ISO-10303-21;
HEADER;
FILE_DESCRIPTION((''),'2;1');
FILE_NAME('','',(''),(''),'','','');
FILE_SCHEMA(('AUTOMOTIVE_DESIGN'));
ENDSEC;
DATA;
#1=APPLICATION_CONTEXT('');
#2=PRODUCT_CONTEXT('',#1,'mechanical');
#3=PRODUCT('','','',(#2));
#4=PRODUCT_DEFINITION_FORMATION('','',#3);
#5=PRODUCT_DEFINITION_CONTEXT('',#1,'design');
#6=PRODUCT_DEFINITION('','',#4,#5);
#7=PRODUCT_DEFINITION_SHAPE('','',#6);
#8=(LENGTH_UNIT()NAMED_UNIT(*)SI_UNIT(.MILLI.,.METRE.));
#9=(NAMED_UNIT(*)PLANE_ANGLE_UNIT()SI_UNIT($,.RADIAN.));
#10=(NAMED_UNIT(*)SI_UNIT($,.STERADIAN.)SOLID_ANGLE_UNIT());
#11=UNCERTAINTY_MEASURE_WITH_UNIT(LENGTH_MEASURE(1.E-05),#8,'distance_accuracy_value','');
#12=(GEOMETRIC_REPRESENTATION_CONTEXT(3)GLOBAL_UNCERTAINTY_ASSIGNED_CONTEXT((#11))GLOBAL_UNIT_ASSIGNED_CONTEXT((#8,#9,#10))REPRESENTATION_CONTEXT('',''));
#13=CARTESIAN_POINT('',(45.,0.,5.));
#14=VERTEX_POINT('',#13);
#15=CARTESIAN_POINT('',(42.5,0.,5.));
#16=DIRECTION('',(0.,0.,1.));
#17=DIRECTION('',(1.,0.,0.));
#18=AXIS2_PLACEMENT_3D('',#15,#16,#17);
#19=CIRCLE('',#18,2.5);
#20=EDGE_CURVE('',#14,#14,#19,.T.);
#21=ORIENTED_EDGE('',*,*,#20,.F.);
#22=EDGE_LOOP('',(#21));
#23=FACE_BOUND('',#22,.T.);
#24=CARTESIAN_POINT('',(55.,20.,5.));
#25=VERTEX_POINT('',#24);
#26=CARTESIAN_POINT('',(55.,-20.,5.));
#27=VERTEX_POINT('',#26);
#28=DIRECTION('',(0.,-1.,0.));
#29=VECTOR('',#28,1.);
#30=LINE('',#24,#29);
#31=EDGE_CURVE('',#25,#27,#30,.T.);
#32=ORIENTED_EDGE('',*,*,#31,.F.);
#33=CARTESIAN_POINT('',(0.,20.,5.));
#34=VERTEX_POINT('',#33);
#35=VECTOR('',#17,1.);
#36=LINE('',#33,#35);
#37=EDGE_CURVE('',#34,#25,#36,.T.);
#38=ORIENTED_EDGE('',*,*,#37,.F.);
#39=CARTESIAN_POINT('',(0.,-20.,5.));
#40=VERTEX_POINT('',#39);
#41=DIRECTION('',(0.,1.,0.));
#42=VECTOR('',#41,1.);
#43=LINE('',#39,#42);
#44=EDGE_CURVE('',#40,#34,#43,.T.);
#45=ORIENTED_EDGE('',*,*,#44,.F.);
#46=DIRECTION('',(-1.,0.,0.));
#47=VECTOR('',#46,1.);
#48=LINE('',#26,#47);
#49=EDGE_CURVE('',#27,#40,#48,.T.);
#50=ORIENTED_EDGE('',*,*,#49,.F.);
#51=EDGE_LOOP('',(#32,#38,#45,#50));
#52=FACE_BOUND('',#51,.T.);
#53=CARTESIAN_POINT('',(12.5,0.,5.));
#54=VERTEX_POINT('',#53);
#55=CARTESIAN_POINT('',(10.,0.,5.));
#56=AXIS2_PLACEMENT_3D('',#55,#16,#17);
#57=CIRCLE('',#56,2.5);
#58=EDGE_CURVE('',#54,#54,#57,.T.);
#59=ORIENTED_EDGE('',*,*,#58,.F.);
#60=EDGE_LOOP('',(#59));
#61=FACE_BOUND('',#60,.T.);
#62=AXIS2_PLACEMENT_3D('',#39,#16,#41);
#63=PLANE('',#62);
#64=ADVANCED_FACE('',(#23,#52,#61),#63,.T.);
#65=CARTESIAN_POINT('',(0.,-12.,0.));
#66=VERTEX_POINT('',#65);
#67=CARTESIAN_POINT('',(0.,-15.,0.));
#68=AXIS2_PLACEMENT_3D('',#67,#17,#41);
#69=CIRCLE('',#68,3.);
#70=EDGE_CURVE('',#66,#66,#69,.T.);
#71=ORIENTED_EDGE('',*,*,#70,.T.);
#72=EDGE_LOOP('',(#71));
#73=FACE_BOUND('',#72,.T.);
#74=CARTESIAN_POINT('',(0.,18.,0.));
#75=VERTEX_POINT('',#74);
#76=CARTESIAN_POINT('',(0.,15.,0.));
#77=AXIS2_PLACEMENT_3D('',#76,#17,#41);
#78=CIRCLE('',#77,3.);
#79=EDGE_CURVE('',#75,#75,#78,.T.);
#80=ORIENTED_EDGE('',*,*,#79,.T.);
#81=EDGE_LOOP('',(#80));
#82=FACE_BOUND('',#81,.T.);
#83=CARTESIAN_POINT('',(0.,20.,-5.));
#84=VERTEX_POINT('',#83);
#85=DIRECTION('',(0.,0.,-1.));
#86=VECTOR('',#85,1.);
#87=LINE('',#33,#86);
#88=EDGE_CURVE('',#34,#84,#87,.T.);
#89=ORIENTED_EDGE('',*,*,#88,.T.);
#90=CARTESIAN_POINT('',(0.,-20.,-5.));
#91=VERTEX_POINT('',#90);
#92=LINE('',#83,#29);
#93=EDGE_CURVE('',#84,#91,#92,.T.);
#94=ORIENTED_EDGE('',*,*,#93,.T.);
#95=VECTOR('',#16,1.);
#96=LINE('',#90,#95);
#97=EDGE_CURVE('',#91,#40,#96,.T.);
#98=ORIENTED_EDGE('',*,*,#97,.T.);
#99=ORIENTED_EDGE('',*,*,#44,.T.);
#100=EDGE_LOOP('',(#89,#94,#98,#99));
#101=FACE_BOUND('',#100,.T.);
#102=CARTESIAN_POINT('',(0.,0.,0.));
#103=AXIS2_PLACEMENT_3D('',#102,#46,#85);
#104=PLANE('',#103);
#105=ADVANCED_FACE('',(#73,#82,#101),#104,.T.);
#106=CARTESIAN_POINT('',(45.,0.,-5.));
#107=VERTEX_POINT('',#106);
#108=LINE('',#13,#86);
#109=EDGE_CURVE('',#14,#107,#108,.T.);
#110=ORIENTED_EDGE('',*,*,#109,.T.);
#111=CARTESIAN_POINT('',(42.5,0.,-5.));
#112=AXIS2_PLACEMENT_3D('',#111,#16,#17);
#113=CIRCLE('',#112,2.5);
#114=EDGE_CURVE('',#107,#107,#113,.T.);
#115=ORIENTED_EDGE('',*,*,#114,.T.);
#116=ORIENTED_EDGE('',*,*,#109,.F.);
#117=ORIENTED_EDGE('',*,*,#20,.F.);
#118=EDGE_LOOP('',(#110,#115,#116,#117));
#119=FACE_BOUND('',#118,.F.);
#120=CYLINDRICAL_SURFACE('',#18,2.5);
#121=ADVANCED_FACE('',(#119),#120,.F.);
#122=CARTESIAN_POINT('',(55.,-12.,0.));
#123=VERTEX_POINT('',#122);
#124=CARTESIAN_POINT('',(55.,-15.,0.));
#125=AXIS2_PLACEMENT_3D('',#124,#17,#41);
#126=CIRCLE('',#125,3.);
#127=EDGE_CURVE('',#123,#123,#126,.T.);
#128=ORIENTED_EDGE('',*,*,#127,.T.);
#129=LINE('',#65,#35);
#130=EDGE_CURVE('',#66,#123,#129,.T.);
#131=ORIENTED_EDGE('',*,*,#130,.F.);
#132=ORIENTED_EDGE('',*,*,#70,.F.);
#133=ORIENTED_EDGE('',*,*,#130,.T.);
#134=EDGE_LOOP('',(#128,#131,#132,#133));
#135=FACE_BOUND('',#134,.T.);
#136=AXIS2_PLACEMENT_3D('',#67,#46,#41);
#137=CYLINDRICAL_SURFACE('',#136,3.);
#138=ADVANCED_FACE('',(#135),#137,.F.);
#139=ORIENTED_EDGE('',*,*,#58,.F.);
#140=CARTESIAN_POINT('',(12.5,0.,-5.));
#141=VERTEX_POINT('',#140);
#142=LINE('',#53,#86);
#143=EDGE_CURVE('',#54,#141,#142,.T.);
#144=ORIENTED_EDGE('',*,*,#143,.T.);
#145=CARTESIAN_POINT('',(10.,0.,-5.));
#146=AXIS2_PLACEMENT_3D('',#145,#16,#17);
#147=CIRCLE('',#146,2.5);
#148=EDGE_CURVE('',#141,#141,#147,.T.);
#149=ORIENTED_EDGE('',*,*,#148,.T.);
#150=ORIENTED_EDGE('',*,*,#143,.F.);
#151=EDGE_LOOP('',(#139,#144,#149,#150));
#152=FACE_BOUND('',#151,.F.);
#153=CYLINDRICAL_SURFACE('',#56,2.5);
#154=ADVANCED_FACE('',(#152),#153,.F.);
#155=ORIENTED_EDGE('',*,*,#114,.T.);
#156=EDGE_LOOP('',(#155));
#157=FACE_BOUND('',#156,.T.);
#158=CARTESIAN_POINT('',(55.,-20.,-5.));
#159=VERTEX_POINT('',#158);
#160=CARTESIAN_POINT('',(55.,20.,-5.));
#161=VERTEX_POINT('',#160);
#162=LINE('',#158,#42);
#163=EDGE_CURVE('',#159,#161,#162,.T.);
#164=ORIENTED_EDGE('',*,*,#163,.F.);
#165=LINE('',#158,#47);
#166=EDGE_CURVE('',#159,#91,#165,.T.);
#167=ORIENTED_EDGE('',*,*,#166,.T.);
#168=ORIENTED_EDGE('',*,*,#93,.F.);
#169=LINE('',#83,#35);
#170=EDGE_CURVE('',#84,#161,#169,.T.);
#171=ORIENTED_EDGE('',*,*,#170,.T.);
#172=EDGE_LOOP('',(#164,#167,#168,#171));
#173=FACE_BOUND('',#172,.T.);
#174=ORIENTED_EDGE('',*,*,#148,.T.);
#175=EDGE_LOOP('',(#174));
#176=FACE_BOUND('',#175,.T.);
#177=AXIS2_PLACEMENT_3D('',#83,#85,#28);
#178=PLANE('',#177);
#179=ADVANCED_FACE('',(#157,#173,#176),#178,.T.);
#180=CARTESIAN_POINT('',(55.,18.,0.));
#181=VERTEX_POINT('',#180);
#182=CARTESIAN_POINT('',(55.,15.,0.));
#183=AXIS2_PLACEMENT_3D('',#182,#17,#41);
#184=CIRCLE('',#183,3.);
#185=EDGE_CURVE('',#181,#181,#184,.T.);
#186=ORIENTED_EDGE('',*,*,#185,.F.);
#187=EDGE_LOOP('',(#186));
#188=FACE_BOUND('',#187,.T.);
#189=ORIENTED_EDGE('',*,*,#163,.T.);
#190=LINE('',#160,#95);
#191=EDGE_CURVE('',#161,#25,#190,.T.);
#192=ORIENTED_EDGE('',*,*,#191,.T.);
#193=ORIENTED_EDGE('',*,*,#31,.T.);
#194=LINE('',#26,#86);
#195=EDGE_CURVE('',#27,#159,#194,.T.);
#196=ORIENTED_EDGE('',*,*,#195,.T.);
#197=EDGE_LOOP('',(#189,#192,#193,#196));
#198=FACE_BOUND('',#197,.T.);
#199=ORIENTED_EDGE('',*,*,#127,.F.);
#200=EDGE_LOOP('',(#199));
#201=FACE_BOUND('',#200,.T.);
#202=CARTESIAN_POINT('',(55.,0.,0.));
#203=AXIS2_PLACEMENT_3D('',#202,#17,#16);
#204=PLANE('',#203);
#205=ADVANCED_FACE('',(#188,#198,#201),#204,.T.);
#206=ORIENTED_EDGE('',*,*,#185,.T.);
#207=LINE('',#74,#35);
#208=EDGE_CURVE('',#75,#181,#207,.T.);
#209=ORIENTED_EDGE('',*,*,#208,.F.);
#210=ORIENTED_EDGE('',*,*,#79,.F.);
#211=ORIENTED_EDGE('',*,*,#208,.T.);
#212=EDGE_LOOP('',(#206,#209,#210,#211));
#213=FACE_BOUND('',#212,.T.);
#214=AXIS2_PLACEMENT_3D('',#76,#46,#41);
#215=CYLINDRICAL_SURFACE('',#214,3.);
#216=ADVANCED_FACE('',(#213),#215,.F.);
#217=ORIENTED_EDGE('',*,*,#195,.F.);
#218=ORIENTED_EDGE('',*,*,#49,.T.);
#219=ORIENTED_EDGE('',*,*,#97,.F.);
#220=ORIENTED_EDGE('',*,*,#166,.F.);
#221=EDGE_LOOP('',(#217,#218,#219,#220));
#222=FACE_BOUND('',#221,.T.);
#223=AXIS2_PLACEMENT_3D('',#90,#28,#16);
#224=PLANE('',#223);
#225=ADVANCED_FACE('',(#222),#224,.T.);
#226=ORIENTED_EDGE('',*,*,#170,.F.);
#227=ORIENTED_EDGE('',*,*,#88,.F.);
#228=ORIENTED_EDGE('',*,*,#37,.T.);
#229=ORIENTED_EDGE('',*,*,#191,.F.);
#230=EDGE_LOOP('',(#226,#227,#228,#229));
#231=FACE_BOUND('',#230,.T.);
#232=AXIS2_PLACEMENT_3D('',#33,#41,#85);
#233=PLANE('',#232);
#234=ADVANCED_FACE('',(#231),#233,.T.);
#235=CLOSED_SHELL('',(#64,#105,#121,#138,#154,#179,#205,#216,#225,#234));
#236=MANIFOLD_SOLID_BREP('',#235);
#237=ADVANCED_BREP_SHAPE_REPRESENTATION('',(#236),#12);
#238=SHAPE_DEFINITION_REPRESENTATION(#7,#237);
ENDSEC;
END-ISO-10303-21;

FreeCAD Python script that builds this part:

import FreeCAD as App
import Part
import Sketcher
from FreeCAD import Vector
Q = App.Units.Quantity


def add_polygon(sketch, points):
    """Adds a closed chain of lines whose ends are joined by coincident constraints."""
    first, n = sketch.GeometryCount, len(points)
    for a, b in zip(points, points[1:] + points[:1]):
        sketch.addGeometry(Part.LineSegment(App.Vector(*a, 0), App.Vector(*b, 0)), False)
    for i in range(n):
        sketch.addConstraint(Sketcher.Constraint("Coincident", first + i, 2, first + (i + 1) % n, 1))

doc = App.newDocument("Part")
body = doc.addObject("PartDesign::Body", "Body")

# Sketch on YZ plane
sketch1 = doc.addObject("Sketcher::SketchObject", "Sketch")
body.addObject(sketch1)
sketch1.AttachmentSupport = (doc.YZ_Plane, [""])
sketch1.MapMode = "FlatFace"
add_polygon(sketch1, [(-20, -5), (20, -5), (20, 5), (-20, 5)])  # lines 0-3
sketch1.addGeometry(Part.Circle(Vector(-15, 0, 0), Vector(0, 0, 1), 3), False)  # 4
sketch1.addGeometry(Part.Circle(Vector(15, 0, 0), Vector(0, 0, 1), 3), False)  # 5
sketch1.addConstraint([
    Sketcher.Constraint("Horizontal", 0),
    Sketcher.Constraint("Vertical", 1),
    Sketcher.Constraint("Horizontal", 2),
    Sketcher.Constraint("Vertical", 3),
    Sketcher.Constraint("Equal", 4, 5),
    Sketcher.Constraint("Symmetric", 4, 3, 5, 3, -1, 1),
    Sketcher.Constraint("Symmetric", 0, 2, 2, 2, -1, 1),
    Sketcher.Constraint("PointOnObject", 4, 3, -1),
    Sketcher.Constraint("Diameter", 4, Q("6 mm")),
    Sketcher.Constraint("DistanceX", -1, 1, 0, 2, Q("20 mm")),
    Sketcher.Constraint("DistanceY", 1, 1, 1, 2, Q("10 mm")),
    Sketcher.Constraint("DistanceX", 4, 3, -1, 1, Q("15 mm")),
])
pad1 = doc.addObject("PartDesign::Pad", "Pad")
body.addObject(pad1)
pad1.Profile = sketch1
pad1.Length = 50

# Sketch on XY plane
sketch2 = doc.addObject("Sketcher::SketchObject", "Sketch001")
body.addObject(sketch2)
sketch2.AttachmentSupport = (doc.XY_Plane, [""])
sketch2.MapMode = "FlatFace"
sketch2.AttachmentOffset = App.Placement(Vector(0, 0, 5), App.Rotation())
sketch2.addGeometry([
    Part.Circle(Vector(10, 0, 0), Vector(0, 0, 1), 2.5),
    Part.Circle(Vector(42.5, 0, 0), Vector(0, 0, 1), 2.5),
], False)
sketch2.addConstraint([
    Sketcher.Constraint("Equal", 0, 1),
    Sketcher.Constraint("PointOnObject", 0, 3, -1),
    Sketcher.Constraint("PointOnObject", 1, 3, -1),
    Sketcher.Constraint("Diameter", 0, Q("5 mm")),
    Sketcher.Constraint("DistanceX", -1, 1, 0, 3, Q("10 mm")),
    Sketcher.Constraint("DistanceX", -1, 1, 1, 3, Q("42.5 mm")),
])
pocket1 = doc.addObject("PartDesign::Pocket", "Pocket")
body.addObject(pocket1)
pocket1.Profile = sketch2
pocket1.Type = "UpToFirst"

# Sketch on YZ plane
sketch3 = doc.addObject("Sketcher::SketchObject", "Sketch002")
body.addObject(sketch3)
sketch3.AttachmentSupport = (doc.YZ_Plane, [""])
sketch3.MapMode = "FlatFace"
sketch3.AttachmentOffset = App.Placement(Vector(0, 0, 50), App.Rotation())
add_polygon(sketch3, [(-20, 5), (-20, -5), (20, -5), (20, 5)])  # lines 0-3
sketch3.addGeometry(Part.Circle(Vector(-15, 0, 0), Vector(0, 0, 1), 3), False)  # 4
sketch3.addGeometry(Part.Circle(Vector(15, 0, 0), Vector(0, 0, 1), 3), False)  # 5
sketch3.addConstraint([
    Sketcher.Constraint("Vertical", 0),
    Sketcher.Constraint("Horizontal", 1),
    Sketcher.Constraint("Vertical", 2),
    Sketcher.Constraint("Horizontal", 3),
    Sketcher.Constraint("Equal", 4, 5),
    Sketcher.Constraint("Symmetric", 4, 3, 5, 3, -1, 1),
    Sketcher.Constraint("Symmetric", 0, 2, 2, 2, -1, 1),
    Sketcher.Constraint("PointOnObject", 4, 3, -1),
    Sketcher.Constraint("Diameter", 4, Q("6 mm")),
    Sketcher.Constraint("DistanceX", 1, 1, 1, 2, Q("40 mm")),
    Sketcher.Constraint("DistanceY", 0, 2, 0, 1, Q("10 mm")),
    Sketcher.Constraint("DistanceX", 4, 3, -1, 1, Q("15 mm")),
])
pad2 = doc.addObject("PartDesign::Pad", "Pad001")
body.addObject(pad2)
pad2.Profile = sketch3
pad2.Length = 5

doc.recompute()
